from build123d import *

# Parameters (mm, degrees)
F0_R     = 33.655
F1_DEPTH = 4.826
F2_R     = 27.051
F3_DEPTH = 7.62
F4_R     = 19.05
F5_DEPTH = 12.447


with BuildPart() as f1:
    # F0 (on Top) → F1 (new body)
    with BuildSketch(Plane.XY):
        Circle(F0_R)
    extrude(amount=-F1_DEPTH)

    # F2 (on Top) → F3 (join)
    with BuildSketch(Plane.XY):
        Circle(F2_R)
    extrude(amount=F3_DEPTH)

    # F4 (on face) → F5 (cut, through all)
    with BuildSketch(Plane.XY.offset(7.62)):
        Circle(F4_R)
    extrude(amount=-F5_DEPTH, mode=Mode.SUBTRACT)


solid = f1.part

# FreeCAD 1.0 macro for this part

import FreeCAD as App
import Part
import Sketcher

V = App.Vector
Q = App.Units.Quantity

doc = App.newDocument("Part")
body = doc.addObject("PartDesign::Body", "Body")

sketch1 = body.newObject("Sketcher::SketchObject", "Sketch")
sketch1.AttachmentSupport = (doc.getObject("XY_Plane"), [""])
sketch1.MapMode = "FlatFace"
sketch1.addGeometry(Part.Circle(V(0, 0, 0), V(0, 0, 1), 33.655), False)
sketch1.addConstraint(Sketcher.Constraint("Coincident", 0, 3, -1, 1))
sketch1.addConstraint(Sketcher.Constraint("Diameter", 0, Q("2.65 in")))
pad1 = body.newObject("PartDesign::Pad", "Pad")
pad1.Profile = sketch1
pad1.Length = Q("0.19 in")
pad1.Reversed = True

sketch2 = body.newObject("Sketcher::SketchObject", "Sketch001")
sketch2.AttachmentSupport = (doc.getObject("XY_Plane"), [""])
sketch2.MapMode = "FlatFace"
sketch2.addGeometry(Part.Circle(V(0, 0, 0), V(0, 0, 1), 27.051), False)
sketch2.addConstraint(Sketcher.Constraint("Coincident", 0, 3, -1, 1))
sketch2.addConstraint(Sketcher.Constraint("Diameter", 0, Q("2.13 in")))
pad2 = body.newObject("PartDesign::Pad", "Pad001")
pad2.Profile = sketch2
pad2.Length = Q("0.3 in")

sketch3 = body.newObject("Sketcher::SketchObject", "Sketch002")
sketch3.AttachmentSupport = (doc.getObject("XY_Plane"), [""])
sketch3.MapMode = "FlatFace"
sketch3.AttachmentOffset = App.Placement(V(0, 0, 0.3 * 25.4), App.Rotation())
sketch3.addGeometry(Part.Circle(V(0, 0, 0), V(0, 0, 1), 19.05), False)
sketch3.addConstraint(Sketcher.Constraint("Coincident", 0, 3, -1, 1))
sketch3.addConstraint(Sketcher.Constraint("Diameter", 0, Q("1.5 in")))
pocket1 = body.newObject("PartDesign::Pocket", "Pocket")
pocket1.Profile = sketch3
pocket1.Type = "ThroughAll"

doc.recompute()
